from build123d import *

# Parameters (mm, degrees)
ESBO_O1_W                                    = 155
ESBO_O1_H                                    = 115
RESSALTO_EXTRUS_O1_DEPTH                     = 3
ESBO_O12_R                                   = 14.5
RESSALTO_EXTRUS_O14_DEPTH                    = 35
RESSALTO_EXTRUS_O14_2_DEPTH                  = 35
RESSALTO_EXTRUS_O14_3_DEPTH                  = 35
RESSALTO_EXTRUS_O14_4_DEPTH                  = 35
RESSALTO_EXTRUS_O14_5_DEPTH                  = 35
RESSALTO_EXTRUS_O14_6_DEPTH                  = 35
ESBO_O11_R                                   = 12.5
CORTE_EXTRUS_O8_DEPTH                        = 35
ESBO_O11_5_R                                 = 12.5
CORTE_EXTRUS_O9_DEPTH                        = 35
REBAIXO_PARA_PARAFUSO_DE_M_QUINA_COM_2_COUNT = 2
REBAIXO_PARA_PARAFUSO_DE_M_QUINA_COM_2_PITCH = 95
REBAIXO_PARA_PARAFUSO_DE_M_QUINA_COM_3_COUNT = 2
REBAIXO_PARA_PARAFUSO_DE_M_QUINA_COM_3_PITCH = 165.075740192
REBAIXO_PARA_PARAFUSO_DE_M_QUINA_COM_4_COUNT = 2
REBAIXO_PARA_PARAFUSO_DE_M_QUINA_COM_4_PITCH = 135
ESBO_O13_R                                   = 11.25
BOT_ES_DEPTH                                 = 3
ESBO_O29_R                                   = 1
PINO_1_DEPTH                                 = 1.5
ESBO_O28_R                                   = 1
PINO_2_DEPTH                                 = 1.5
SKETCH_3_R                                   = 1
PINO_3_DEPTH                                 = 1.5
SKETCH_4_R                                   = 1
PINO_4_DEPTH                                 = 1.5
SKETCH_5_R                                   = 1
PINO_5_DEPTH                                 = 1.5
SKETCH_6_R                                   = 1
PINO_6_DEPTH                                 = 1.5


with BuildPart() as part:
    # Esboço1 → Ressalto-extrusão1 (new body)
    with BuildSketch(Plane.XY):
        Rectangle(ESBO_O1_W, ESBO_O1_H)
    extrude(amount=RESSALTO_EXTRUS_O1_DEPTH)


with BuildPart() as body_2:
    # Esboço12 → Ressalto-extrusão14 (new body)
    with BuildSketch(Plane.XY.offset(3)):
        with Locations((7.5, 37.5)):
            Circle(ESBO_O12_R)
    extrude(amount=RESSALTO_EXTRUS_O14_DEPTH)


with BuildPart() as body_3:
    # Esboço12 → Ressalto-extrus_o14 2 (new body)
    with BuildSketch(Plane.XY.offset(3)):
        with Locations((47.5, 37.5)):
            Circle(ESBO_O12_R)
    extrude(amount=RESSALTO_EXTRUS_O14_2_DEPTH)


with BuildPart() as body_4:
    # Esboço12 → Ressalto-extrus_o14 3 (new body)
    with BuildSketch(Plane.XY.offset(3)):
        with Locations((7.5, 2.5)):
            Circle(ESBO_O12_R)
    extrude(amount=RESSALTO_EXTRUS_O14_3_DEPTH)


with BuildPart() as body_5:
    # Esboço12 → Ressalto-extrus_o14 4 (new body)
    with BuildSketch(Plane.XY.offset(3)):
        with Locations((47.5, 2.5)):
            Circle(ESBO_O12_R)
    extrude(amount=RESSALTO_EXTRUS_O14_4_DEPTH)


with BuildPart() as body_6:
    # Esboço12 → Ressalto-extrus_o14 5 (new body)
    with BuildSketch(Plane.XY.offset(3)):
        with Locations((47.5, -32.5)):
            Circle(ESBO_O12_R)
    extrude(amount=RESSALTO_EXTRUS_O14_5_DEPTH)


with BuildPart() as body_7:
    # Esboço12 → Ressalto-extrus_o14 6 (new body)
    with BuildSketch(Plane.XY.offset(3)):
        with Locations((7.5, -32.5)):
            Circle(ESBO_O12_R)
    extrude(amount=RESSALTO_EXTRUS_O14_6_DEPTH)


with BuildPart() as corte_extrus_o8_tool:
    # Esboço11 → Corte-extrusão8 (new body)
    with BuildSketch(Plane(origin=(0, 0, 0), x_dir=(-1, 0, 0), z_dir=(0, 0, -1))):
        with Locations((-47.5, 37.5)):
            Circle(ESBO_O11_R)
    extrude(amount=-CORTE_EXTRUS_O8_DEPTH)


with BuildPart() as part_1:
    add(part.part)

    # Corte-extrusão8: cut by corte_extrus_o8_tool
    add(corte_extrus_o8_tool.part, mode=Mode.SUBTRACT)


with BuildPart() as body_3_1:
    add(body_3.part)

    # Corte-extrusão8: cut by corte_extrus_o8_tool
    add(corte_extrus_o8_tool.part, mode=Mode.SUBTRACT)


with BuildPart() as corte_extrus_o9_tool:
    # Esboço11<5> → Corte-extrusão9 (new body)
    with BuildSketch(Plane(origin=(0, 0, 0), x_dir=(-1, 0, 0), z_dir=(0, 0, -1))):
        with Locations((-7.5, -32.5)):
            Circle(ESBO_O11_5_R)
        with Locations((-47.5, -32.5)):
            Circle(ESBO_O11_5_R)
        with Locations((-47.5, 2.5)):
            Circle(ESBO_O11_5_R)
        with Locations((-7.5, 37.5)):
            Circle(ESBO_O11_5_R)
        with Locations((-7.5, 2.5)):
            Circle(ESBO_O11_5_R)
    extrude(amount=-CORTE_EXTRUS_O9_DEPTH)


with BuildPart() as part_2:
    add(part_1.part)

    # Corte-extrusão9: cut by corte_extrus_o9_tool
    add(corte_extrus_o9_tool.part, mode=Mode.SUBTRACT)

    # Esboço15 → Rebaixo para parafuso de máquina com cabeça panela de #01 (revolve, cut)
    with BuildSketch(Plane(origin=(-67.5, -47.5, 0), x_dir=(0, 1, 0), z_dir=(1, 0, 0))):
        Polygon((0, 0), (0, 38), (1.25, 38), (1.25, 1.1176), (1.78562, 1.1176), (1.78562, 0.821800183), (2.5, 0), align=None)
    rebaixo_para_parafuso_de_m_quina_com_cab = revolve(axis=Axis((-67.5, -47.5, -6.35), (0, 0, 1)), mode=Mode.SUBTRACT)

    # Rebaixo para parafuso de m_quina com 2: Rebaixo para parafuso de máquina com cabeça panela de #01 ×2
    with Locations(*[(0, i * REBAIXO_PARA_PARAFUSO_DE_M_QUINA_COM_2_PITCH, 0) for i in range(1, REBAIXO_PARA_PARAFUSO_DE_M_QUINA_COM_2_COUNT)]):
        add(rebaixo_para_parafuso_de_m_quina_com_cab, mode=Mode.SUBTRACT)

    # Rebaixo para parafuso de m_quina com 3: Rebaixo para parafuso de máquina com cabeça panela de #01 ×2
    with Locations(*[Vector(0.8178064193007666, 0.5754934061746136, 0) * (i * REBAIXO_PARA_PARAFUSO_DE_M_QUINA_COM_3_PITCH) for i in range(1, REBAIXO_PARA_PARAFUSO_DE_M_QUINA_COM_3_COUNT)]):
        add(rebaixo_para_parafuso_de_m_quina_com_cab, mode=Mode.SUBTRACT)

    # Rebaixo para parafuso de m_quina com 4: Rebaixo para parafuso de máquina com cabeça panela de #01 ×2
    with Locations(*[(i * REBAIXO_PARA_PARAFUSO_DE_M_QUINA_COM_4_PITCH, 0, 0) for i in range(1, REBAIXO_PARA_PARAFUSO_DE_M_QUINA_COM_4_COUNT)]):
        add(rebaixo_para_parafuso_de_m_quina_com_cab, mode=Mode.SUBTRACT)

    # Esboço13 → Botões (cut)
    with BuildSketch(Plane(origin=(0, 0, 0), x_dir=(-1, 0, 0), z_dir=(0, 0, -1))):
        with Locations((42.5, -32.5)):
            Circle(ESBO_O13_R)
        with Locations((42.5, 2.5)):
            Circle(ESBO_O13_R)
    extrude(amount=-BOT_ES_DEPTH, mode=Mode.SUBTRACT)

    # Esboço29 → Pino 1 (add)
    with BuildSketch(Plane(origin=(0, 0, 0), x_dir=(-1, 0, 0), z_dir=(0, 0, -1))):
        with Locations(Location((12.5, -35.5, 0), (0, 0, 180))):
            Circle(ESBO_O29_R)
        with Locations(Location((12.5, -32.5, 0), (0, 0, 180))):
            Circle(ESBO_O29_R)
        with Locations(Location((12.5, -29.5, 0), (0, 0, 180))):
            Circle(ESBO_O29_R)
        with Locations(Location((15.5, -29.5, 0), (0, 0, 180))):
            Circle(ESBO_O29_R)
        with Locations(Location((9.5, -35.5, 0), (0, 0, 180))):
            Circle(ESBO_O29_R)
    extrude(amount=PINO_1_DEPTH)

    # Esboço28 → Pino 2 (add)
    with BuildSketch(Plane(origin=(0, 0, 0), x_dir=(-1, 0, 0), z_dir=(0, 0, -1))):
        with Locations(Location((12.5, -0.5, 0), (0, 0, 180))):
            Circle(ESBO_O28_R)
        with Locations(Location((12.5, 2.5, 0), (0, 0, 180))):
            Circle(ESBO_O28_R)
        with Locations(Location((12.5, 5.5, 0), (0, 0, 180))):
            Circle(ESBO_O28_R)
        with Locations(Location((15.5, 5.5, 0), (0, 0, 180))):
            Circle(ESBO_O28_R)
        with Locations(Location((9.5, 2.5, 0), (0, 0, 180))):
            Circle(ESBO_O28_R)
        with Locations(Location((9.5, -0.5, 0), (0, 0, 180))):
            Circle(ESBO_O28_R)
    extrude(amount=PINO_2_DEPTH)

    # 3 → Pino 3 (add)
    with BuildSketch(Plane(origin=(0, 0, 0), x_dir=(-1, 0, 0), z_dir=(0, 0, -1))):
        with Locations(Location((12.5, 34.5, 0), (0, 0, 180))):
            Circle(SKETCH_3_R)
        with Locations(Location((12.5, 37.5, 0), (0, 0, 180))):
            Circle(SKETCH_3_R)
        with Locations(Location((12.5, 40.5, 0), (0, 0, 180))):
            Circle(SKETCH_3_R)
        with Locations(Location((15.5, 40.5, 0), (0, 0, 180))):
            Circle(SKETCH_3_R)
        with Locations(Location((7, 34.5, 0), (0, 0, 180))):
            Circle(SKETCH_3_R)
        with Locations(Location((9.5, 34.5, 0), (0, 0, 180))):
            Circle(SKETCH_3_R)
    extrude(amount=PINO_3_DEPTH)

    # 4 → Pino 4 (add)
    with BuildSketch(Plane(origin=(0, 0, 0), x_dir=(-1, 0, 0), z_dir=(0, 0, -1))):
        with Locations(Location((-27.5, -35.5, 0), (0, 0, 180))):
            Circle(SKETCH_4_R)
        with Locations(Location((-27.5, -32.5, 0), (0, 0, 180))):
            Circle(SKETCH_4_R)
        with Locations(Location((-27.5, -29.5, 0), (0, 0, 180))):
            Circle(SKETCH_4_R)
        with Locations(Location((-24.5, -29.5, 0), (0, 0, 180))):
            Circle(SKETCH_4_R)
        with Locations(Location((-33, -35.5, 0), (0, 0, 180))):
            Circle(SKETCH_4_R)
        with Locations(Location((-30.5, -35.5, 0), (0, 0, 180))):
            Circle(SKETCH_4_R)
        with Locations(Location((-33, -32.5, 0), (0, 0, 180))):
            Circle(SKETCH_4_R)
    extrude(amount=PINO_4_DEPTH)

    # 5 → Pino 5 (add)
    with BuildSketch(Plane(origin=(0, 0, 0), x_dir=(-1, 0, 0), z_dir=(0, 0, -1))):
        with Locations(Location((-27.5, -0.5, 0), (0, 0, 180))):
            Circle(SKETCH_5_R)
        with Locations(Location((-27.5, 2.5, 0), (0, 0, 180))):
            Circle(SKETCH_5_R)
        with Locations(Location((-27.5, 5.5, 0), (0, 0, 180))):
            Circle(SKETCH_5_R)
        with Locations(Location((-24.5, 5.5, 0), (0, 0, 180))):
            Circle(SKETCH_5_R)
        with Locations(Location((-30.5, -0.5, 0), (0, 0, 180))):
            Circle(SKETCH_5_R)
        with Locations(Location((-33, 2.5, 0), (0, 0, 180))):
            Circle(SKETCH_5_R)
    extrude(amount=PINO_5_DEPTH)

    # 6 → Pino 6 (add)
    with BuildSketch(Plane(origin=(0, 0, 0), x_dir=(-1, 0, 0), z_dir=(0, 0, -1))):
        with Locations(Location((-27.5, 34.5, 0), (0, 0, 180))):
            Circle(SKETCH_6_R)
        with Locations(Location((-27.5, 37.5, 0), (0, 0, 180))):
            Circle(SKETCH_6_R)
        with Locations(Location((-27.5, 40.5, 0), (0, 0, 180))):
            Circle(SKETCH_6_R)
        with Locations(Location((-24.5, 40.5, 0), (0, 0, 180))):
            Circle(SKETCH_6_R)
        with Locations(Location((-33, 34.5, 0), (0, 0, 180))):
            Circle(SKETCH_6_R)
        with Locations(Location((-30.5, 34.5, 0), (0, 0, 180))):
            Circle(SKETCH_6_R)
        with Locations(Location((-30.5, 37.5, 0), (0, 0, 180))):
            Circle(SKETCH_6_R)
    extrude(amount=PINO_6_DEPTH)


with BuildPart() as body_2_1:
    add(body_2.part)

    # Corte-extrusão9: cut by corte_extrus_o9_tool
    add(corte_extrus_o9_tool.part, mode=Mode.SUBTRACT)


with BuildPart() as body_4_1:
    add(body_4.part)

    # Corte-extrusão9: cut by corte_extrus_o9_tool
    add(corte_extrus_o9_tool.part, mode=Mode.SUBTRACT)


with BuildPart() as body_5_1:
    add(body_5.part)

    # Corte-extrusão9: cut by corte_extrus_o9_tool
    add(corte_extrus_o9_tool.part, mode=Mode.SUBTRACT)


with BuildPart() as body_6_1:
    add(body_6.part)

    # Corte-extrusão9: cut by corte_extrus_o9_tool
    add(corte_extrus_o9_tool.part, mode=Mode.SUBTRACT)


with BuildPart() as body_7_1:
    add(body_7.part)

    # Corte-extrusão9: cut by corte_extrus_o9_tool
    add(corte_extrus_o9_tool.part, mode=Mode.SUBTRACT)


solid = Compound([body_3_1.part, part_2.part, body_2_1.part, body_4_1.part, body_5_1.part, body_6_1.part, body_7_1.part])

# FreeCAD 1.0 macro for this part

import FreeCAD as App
import Part
import Sketcher
Q = App.Units.Quantity


def add_polygon(sketch, points):
    """Adds a closed chain of lines whose ends are joined by coincident constraints."""
    first, n = sketch.GeometryCount, len(points)
    for a, b in zip(points, points[1:] + points[:1]):
        sketch.addGeometry(Part.LineSegment(App.Vector(*a, 0), App.Vector(*b, 0)), False)
    for i in range(n):
        sketch.addConstraint(Sketcher.Constraint("Coincident", first + i, 2, first + (i + 1) % n, 1))

doc = App.newDocument("Part")
body = doc.addObject("PartDesign::Body", "Body")

sketch1 = body.newObject("Sketcher::SketchObject", "Sketch")
sketch1.AttachmentSupport = (doc.getObject("XY_Plane"), [""])
sketch1.MapMode = "FlatFace"
add_polygon(sketch1, [(-78, 58), (-78, -58), (78, -58), (78, 58)])
sketch1.addConstraint([
    Sketcher.Constraint("Vertical", 0),
    Sketcher.Constraint("Horizontal", 1),
    Sketcher.Constraint("Vertical", 2),
    Sketcher.Constraint("Horizontal", 3),
    Sketcher.Constraint("Symmetric", 0, 2, 2, 2, -1, 1),
    Sketcher.Constraint("DistanceX", 1, 1, 1, 2, 155.0),
    Sketcher.Constraint("DistanceY", 0, 2, 0, 1, 115.0),
])
pad1 = body.newObject("PartDesign::Pad", "Pad")
pad1.Profile = sketch1
pad1.Length = 3
body2 = doc.addObject("PartDesign::Body", "Body001")

sketch2 = body2.newObject("Sketcher::SketchObject", "Sketch001")
sketch2.AttachmentSupport = (doc.getObject("XY_Plane001"), [""])
sketch2.MapMode = "FlatFace"
sketch2.AttachmentOffset = App.Placement(App.Vector(0, 0, 3), App.Rotation())
sketch2.addGeometry(Part.Circle(App.Vector(8, 38, 0), App.Vector(0, 0, 1), 14), False)
sketch2.addConstraint([
    Sketcher.Constraint("Diameter", 0, 29.0),
    Sketcher.Constraint("DistanceX", -1, 1, 0, 3, 7.5),
    Sketcher.Constraint("DistanceY", -1, 1, 0, 3, 37.5),
])
pad2 = body2.newObject("PartDesign::Pad", "Pad001")
pad2.Profile = sketch2
pad2.Length = 35
body3 = doc.addObject("PartDesign::Body", "Body002")

sketch3 = body3.newObject("Sketcher::SketchObject", "Sketch002")
sketch3.AttachmentSupport = (doc.getObject("XY_Plane002"), [""])
sketch3.MapMode = "FlatFace"
sketch3.AttachmentOffset = App.Placement(App.Vector(0, 0, 3), App.Rotation())
sketch3.addGeometry(Part.Circle(App.Vector(48, 38, 0), App.Vector(0, 0, 1), 14), False)
sketch3.addConstraint([
    Sketcher.Constraint("Diameter", 0, 29.0),
    Sketcher.Constraint("DistanceX", -1, 1, 0, 3, 47.5),
    Sketcher.Constraint("DistanceY", -1, 1, 0, 3, 37.5),
])
pad3 = body3.newObject("PartDesign::Pad", "Pad002")
pad3.Profile = sketch3
pad3.Length = 35
body4 = doc.addObject("PartDesign::Body", "Body003")

sketch4 = body4.newObject("Sketcher::SketchObject", "Sketch003")
sketch4.AttachmentSupport = (doc.getObject("XY_Plane003"), [""])
sketch4.MapMode = "FlatFace"
sketch4.AttachmentOffset = App.Placement(App.Vector(0, 0, 3), App.Rotation())
sketch4.addGeometry(Part.Circle(App.Vector(8, 2, 0), App.Vector(0, 0, 1), 14), False)
sketch4.addConstraint([
    Sketcher.Constraint("Diameter", 0, 29.0),
    Sketcher.Constraint("DistanceX", -1, 1, 0, 3, 7.5),
    Sketcher.Constraint("DistanceY", -1, 1, 0, 3, 2.5),
])
pad4 = body4.newObject("PartDesign::Pad", "Pad003")
pad4.Profile = sketch4
pad4.Length = 35
body5 = doc.addObject("PartDesign::Body", "Body004")

sketch5 = body5.newObject("Sketcher::SketchObject", "Sketch004")
sketch5.AttachmentSupport = (doc.getObject("XY_Plane004"), [""])
sketch5.MapMode = "FlatFace"
sketch5.AttachmentOffset = App.Placement(App.Vector(0, 0, 3), App.Rotation())
sketch5.addGeometry(Part.Circle(App.Vector(48, 2, 0), App.Vector(0, 0, 1), 14), False)
sketch5.addConstraint([
    Sketcher.Constraint("Diameter", 0, 29.0),
    Sketcher.Constraint("DistanceX", -1, 1, 0, 3, 47.5),
    Sketcher.Constraint("DistanceY", -1, 1, 0, 3, 2.5),
])
pad5 = body5.newObject("PartDesign::Pad", "Pad004")
pad5.Profile = sketch5
pad5.Length = 35
body6 = doc.addObject("PartDesign::Body", "Body005")

sketch6 = body6.newObject("Sketcher::SketchObject", "Sketch005")
sketch6.AttachmentSupport = (doc.getObject("XY_Plane005"), [""])
sketch6.MapMode = "FlatFace"
sketch6.AttachmentOffset = App.Placement(App.Vector(0, 0, 3), App.Rotation())
sketch6.addGeometry(Part.Circle(App.Vector(48, -32, 0), App.Vector(0, 0, 1), 14), False)
sketch6.addConstraint([
    Sketcher.Constraint("Diameter", 0, 29.0),
    Sketcher.Constraint("DistanceX", -1, 1, 0, 3, 47.5),
    Sketcher.Constraint("DistanceY", 0, 3, -1, 1, 32.5),
])
pad6 = body6.newObject("PartDesign::Pad", "Pad005")
pad6.Profile = sketch6
pad6.Length = 35
body7 = doc.addObject("PartDesign::Body", "Body006")

sketch7 = body7.newObject("Sketcher::SketchObject", "Sketch006")
sketch7.AttachmentSupport = (doc.getObject("XY_Plane006"), [""])
sketch7.MapMode = "FlatFace"
sketch7.AttachmentOffset = App.Placement(App.Vector(0, 0, 3), App.Rotation())
sketch7.addGeometry(Part.Circle(App.Vector(8, -32, 0), App.Vector(0, 0, 1), 14), False)
sketch7.addConstraint([
    Sketcher.Constraint("Diameter", 0, 29.0),
    Sketcher.Constraint("DistanceX", -1, 1, 0, 3, 7.5),
    Sketcher.Constraint("DistanceY", 0, 3, -1, 1, 32.5),
])
pad7 = body7.newObject("PartDesign::Pad", "Pad006")
pad7.Profile = sketch7
pad7.Length = 35
body8 = doc.addObject("PartDesign::Body", "Body007")

sketch8 = body8.newObject("Sketcher::SketchObject", "Sketch007")
sketch8.AttachmentSupport = (doc.getObject("XY_Plane007"), [""])
sketch8.MapMode = "FlatFace"
sketch8.addGeometry(Part.Circle(App.Vector(48, 38, 0), App.Vector(0, 0, 1), 12), False)
sketch8.addConstraint([
    Sketcher.Constraint("Diameter", 0, 25.0),
    Sketcher.Constraint("DistanceX", -1, 1, 0, 3, 47.5),
    Sketcher.Constraint("DistanceY", -1, 1, 0, 3, 37.5),
])
pad8 = body8.newObject("PartDesign::Pad", "Pad007")
pad8.Profile = sketch8
pad8.Length = 35
doc.recompute()

body9 = doc.addObject("PartDesign::Body", "Body008")
body9.BaseFeature = body8
boolean = body.newObject("PartDesign::Boolean", "Boolean")
boolean.Type = "Cut"
boolean.addObjects([body9])
doc.recompute()

boolean2 = body3.newObject("PartDesign::Boolean", "Boolean001")
boolean2.Type = "Cut"
boolean2.addObjects([body8])
body10 = doc.addObject("PartDesign::Body", "Body009")
body10.AllowCompound = True

sketch9 = body10.newObject("Sketcher::SketchObject", "Sketch008")
sketch9.AttachmentSupport = (doc.getObject("XY_Plane009"), [""])
sketch9.MapMode = "FlatFace"
sketch9.addGeometry([
    Part.Circle(App.Vector(8, -32, 0), App.Vector(0, 0, 1), 12),
    Part.Circle(App.Vector(48, -32, 0), App.Vector(0, 0, 1), 12),
    Part.Circle(App.Vector(48, 2, 0), App.Vector(0, 0, 1), 12),
    Part.Circle(App.Vector(8, 38, 0), App.Vector(0, 0, 1), 12),
    Part.Circle(App.Vector(8, 2, 0), App.Vector(0, 0, 1), 12),
], False)
sketch9.addConstraint([
    Sketcher.Constraint("Equal", 0, 1),
    Sketcher.Constraint("Equal", 1, 2),
    Sketcher.Constraint("Equal", 2, 3),
    Sketcher.Constraint("Equal", 3, 4),
    Sketcher.Constraint("Horizontal", 0, 3, 1, 3),
    Sketcher.Constraint("Horizontal", 2, 3, 4, 3),
    Sketcher.Constraint("Vertical", 1, 3, 2, 3),
    Sketcher.Constraint("Vertical", 0, 3, 3, 3),
    Sketcher.Constraint("Vertical", 3, 3, 4, 3),
    Sketcher.Constraint("Diameter", 0, 25.0),
    Sketcher.Constraint("DistanceX", 0, 3, 1, 3, 40.0),
    Sketcher.Constraint("DistanceY", 1, 3, 2, 3, 35.0),
    Sketcher.Constraint("DistanceY", 2, 3, 3, 3, 35.0),
    Sketcher.Constraint("DistanceX", -1, 1, 0, 3, 7.5),
    Sketcher.Constraint("DistanceY", 0, 3, -1, 1, 32.5),
])
pad9 = body10.newObject("PartDesign::Pad", "Pad008")
pad9.Profile = sketch9
pad9.Length = 35
doc.recompute()

body11 = doc.addObject("PartDesign::Body", "Body010")
body11.BaseFeature = body10
boolean3 = body.newObject("PartDesign::Boolean", "Boolean002")
boolean3.Type = "Cut"
boolean3.addObjects([body11])
doc.recompute()

sketch10 = body.newObject("Sketcher::SketchObject", "Sketch009")
sketch10.AttachmentSupport = (doc.getObject("YZ_Plane"), [""])
sketch10.MapMode = "FlatFace"
sketch10.AttachmentOffset = App.Placement(App.Vector(0, 0, -67.5), App.Rotation())
add_polygon(sketch10, [(-47.5, 38), (-47.5, 0), (-45, 0), (-45.71, 0.82), (-45.71, 1.12), (-46.25, 1.12), (-46.25, 38)])
sketch10.addGeometry(Part.LineSegment(App.Vector(-47.5, 0, 0), App.Vector(-47.5, 38, 0)), True)
sketch10.addConstraint([
    Sketcher.Constraint("Vertical", 0),
    Sketcher.Constraint("Horizontal", 1),
    Sketcher.Constraint("Vertical", 3),
    Sketcher.Constraint("Horizontal", 4),
    Sketcher.Constraint("Vertical", 5),
    Sketcher.Constraint("Horizontal", 6),
    Sketcher.Constraint("Vertical", 7),
    Sketcher.Constraint("Coincident", 7, 1, 0, 2),
    Sketcher.Constraint("PointOnObject", 0, 2, -1),
    Sketcher.Constraint("Horizontal", 5, 2, 7, 2),
    Sketcher.Constraint("DistanceY", 0, 2, 0, 1, 38.0),
    Sketcher.Constraint("Angle", 2, Q("131 deg")),
    Sketcher.Constraint("DistanceX", 1, 1, 1, 2, 2.5),
    Sketcher.Constraint("DistanceX", 1, 2, -1, 1, 45.0),
    Sketcher.Constraint("DistanceX", 6, 2, 6, 1, 1.25),
    Sketcher.Constraint("DistanceY", 3, 1, 3, 2, 0.2958),
    Sketcher.Constraint("DistanceY", 5, 1, 5, 2, 36.8824),
])
groove = body.newObject("PartDesign::Groove", "Groove")
groove.Profile = sketch10
groove.ReferenceAxis = (sketch10, ["Axis0"])
groove.Angle = 360
doc.recompute()

linearpattern = body.newObject("PartDesign::LinearPattern", "LinearPattern")
linearpattern.Originals = [groove]
linearpattern.Direction = (doc.getObject("Y_Axis"), [""])
linearpattern.Mode = "offset"
linearpattern.Offset = 95
linearpattern.Occurrences = 2
body.Tip = linearpattern
doc.recompute()

datumline = body.newObject("PartDesign::Line", "DatumLine")
datumline.Placement = App.Placement(App.Vector(0, 0, 0), App.Rotation(App.Vector(0, 0, 1), App.Vector(0.817806419, 0.575493406, 0)))
linearpattern2 = body.newObject("PartDesign::LinearPattern", "LinearPattern001")
linearpattern2.Originals = [groove]
linearpattern2.Direction = (datumline, [""])
linearpattern2.Mode = "offset"
linearpattern2.Offset = 165.07574
linearpattern2.Occurrences = 2
body.Tip = linearpattern2
doc.recompute()

linearpattern3 = body.newObject("PartDesign::LinearPattern", "LinearPattern002")
linearpattern3.Originals = [groove]
linearpattern3.Direction = (doc.getObject("X_Axis"), [""])
linearpattern3.Mode = "offset"
linearpattern3.Offset = 135
linearpattern3.Occurrences = 2
body.Tip = linearpattern3

sketch11 = body.newObject("Sketcher::SketchObject", "Sketch010")
sketch11.AttachmentSupport = (doc.getObject("XY_Plane"), [""])
sketch11.MapMode = "FlatFace"
sketch11.addGeometry([
    Part.Circle(App.Vector(-42, -32, 0), App.Vector(0, 0, 1), 11),
    Part.Circle(App.Vector(-42, 2, 0), App.Vector(0, 0, 1), 11),
], False)
sketch11.addConstraint([
    Sketcher.Constraint("Equal", 0, 1),
    Sketcher.Constraint("Vertical", 0, 3, 1, 3),
    Sketcher.Constraint("Diameter", 0, 22.5),
    Sketcher.Constraint("DistanceY", 0, 3, 1, 3, 35.0),
    Sketcher.Constraint("DistanceX", 0, 3, -1, 1, 42.5),
    Sketcher.Constraint("DistanceY", 0, 3, -1, 1, 32.5),
])
pocket1 = body.newObject("PartDesign::Pocket", "Pocket")
pocket1.Profile = sketch11
pocket1.Length = 3
pocket1.Reversed = True

sketch12 = body.newObject("Sketcher::SketchObject", "Sketch011")
sketch12.AttachmentSupport = (doc.getObject("XY_Plane"), [""])
sketch12.MapMode = "FlatFace"
sketch12.addGeometry([
    Part.Circle(App.Vector(-12.5, -35.5, 0), App.Vector(0, 0, 1), 1),
    Part.Circle(App.Vector(-12.5, -32.5, 0), App.Vector(0, 0, 1), 1),
    Part.Circle(App.Vector(-12.5, -29.5, 0), App.Vector(0, 0, 1), 1),
    Part.Circle(App.Vector(-15.5, -29.5, 0), App.Vector(0, 0, 1), 1),
    Part.Circle(App.Vector(-9.5, -35.5, 0), App.Vector(0, 0, 1), 1),
], False)
sketch12.addConstraint([
    Sketcher.Constraint("Equal", 0, 1),
    Sketcher.Constraint("Equal", 1, 2),
    Sketcher.Constraint("Equal", 2, 3),
    Sketcher.Constraint("Equal", 3, 4),
    Sketcher.Constraint("Horizontal", 2, 3, 3, 3),
    Sketcher.Constraint("Horizontal", 0, 3, 4, 3),
    Sketcher.Constraint("Vertical", 0, 3, 1, 3),
    Sketcher.Constraint("Vertical", 1, 3, 2, 3),
    Sketcher.Constraint("Diameter", 0, 2.0),
    Sketcher.Constraint("DistanceY", 0, 3, 1, 3, 3.0),
    Sketcher.Constraint("DistanceY", 1, 3, 2, 3, 3.0),
    Sketcher.Constraint("DistanceX", 3, 3, 2, 3, 3.0),
    Sketcher.Constraint("DistanceX", 0, 3, 4, 3, 3.0),
    Sketcher.Constraint("DistanceX", 0, 3, -1, 1, 12.5),
    Sketcher.Constraint("DistanceY", 0, 3, -1, 1, 35.5),
])
pad10 = body.newObject("PartDesign::Pad", "Pad009")
pad10.Profile = sketch12
pad10.Length = 1.5
pad10.Reversed = True

sketch13 = body.newObject("Sketcher::SketchObject", "Sketch012")
sketch13.AttachmentSupport = (doc.getObject("XY_Plane"), [""])
sketch13.MapMode = "FlatFace"
sketch13.addGeometry([
    Part.Circle(App.Vector(-12.5, -0.5, 0), App.Vector(0, 0, 1), 1),
    Part.Circle(App.Vector(-12.5, 2.5, 0), App.Vector(0, 0, 1), 1),
    Part.Circle(App.Vector(-12.5, 5.5, 0), App.Vector(0, 0, 1), 1),
    Part.Circle(App.Vector(-15.5, 5.5, 0), App.Vector(0, 0, 1), 1),
    Part.Circle(App.Vector(-9.5, 2.5, 0), App.Vector(0, 0, 1), 1),
    Part.Circle(App.Vector(-9.5, -0.5, 0), App.Vector(0, 0, 1), 1),
], False)
sketch13.addConstraint([
    Sketcher.Constraint("Equal", 0, 1),
    Sketcher.Constraint("Equal", 1, 2),
    Sketcher.Constraint("Equal", 2, 3),
    Sketcher.Constraint("Equal", 3, 4),
    Sketcher.Constraint("Equal", 4, 5),
    Sketcher.Constraint("Horizontal", 2, 3, 3, 3),
    Sketcher.Constraint("Horizontal", 1, 3, 4, 3),
    Sketcher.Constraint("Horizontal", 0, 3, 5, 3),
    Sketcher.Constraint("Vertical", 0, 3, 1, 3),
    Sketcher.Constraint("Vertical", 1, 3, 2, 3),
    Sketcher.Constraint("Vertical", 4, 3, 5, 3),
    Sketcher.Constraint("Diameter", 0, 2.0),
    Sketcher.Constraint("DistanceY", 0, 3, 1, 3, 3.0),
    Sketcher.Constraint("DistanceY", 1, 3, 2, 3, 3.0),
    Sketcher.Constraint("DistanceX", 3, 3, 2, 3, 3.0),
    Sketcher.Constraint("DistanceX", 1, 3, 4, 3, 3.0),
    Sketcher.Constraint("DistanceX", 0, 3, -1, 1, 12.5),
    Sketcher.Constraint("DistanceY", 0, 3, -1, 1, 0.5),
])
pad11 = body.newObject("PartDesign::Pad", "Pad010")
pad11.Profile = sketch13
pad11.Length = 1.5
pad11.Reversed = True

sketch14 = body.newObject("Sketcher::SketchObject", "Sketch013")
sketch14.AttachmentSupport = (doc.getObject("XY_Plane"), [""])
sketch14.MapMode = "FlatFace"
sketch14.addGeometry([
    Part.Circle(App.Vector(-12.5, 34.5, 0), App.Vector(0, 0, 1), 1),
    Part.Circle(App.Vector(-12.5, 37.5, 0), App.Vector(0, 0, 1), 1),
    Part.Circle(App.Vector(-12.5, 40.5, 0), App.Vector(0, 0, 1), 1),
    Part.Circle(App.Vector(-15.5, 40.5, 0), App.Vector(0, 0, 1), 1),
    Part.Circle(App.Vector(-7, 34.5, 0), App.Vector(0, 0, 1), 1),
    Part.Circle(App.Vector(-9.5, 34.5, 0), App.Vector(0, 0, 1), 1),
], False)
sketch14.addConstraint([
    Sketcher.Constraint("Equal", 0, 1),
    Sketcher.Constraint("Equal", 1, 2),
    Sketcher.Constraint("Equal", 2, 3),
    Sketcher.Constraint("Equal", 3, 4),
    Sketcher.Constraint("Equal", 4, 5),
    Sketcher.Constraint("Horizontal", 2, 3, 3, 3),
    Sketcher.Constraint("Horizontal", 0, 3, 4, 3),
    Sketcher.Constraint("Horizontal", 4, 3, 5, 3),
    Sketcher.Constraint("Vertical", 0, 3, 1, 3),
    Sketcher.Constraint("Vertical", 1, 3, 2, 3),
    Sketcher.Constraint("Diameter", 0, 2.0),
    Sketcher.Constraint("DistanceX", 4, 3, -1, 1, 7.0),
    Sketcher.Constraint("DistanceY", 0, 3, 1, 3, 3.0),
    Sketcher.Constraint("DistanceY", 1, 3, 2, 3, 3.0),
    Sketcher.Constraint("DistanceX", 3, 3, 2, 3, 3.0),
    Sketcher.Constraint("DistanceX", 0, 3, 5, 3, 3.0),
    Sketcher.Constraint("DistanceX", 0, 3, -1, 1, 12.5),
    Sketcher.Constraint("DistanceY", -1, 1, 0, 3, 34.5),
])
pad12 = body.newObject("PartDesign::Pad", "Pad011")
pad12.Profile = sketch14
pad12.Length = 1.5
pad12.Reversed = True

sketch15 = body.newObject("Sketcher::SketchObject", "Sketch014")
sketch15.AttachmentSupport = (doc.getObject("XY_Plane"), [""])
sketch15.MapMode = "FlatFace"
sketch15.addGeometry([
    Part.Circle(App.Vector(27.5, -35.5, 0), App.Vector(0, 0, 1), 1),
    Part.Circle(App.Vector(27.5, -32.5, 0), App.Vector(0, 0, 1), 1),
    Part.Circle(App.Vector(27.5, -29.5, 0), App.Vector(0, 0, 1), 1),
    Part.Circle(App.Vector(24.5, -29.5, 0), App.Vector(0, 0, 1), 1),
    Part.Circle(App.Vector(33, -35.5, 0), App.Vector(0, 0, 1), 1),
    Part.Circle(App.Vector(30.5, -35.5, 0), App.Vector(0, 0, 1), 1),
    Part.Circle(App.Vector(33, -32.5, 0), App.Vector(0, 0, 1), 1),
], False)
sketch15.addConstraint([
    Sketcher.Constraint("Equal", 0, 1),
    Sketcher.Constraint("Equal", 1, 2),
    Sketcher.Constraint("Equal", 2, 3),
    Sketcher.Constraint("Equal", 3, 4),
    Sketcher.Constraint("Equal", 4, 5),
    Sketcher.Constraint("Equal", 5, 6),
    Sketcher.Constraint("Horizontal", 2, 3, 3, 3),
    Sketcher.Constraint("Horizontal", 0, 3, 4, 3),
    Sketcher.Constraint("Horizontal", 4, 3, 5, 3),
    Sketcher.Constraint("Horizontal", 1, 3, 6, 3),
    Sketcher.Constraint("Vertical", 0, 3, 1, 3),
    Sketcher.Constraint("Vertical", 1, 3, 2, 3),
    Sketcher.Constraint("Vertical", 4, 3, 6, 3),
    Sketcher.Constraint("Diameter", 0, 2.0),
    Sketcher.Constraint("DistanceX", -1, 1, 4, 3, 33.0),
    Sketcher.Constraint("DistanceY", 0, 3, 1, 3, 3.0),
    Sketcher.Constraint("DistanceY", 1, 3, 2, 3, 3.0),
    Sketcher.Constraint("DistanceX", 3, 3, 2, 3, 3.0),
    Sketcher.Constraint("DistanceX", 0, 3, 5, 3, 3.0),
    Sketcher.Constraint("DistanceX", -1, 1, 0, 3, 27.5),
    Sketcher.Constraint("DistanceY", 0, 3, -1, 1, 35.5),
])
pad13 = body.newObject("PartDesign::Pad", "Pad012")
pad13.Profile = sketch15
pad13.Length = 1.5
pad13.Reversed = True

sketch16 = body.newObject("Sketcher::SketchObject", "Sketch015")
sketch16.AttachmentSupport = (doc.getObject("XY_Plane"), [""])
sketch16.MapMode = "FlatFace"
sketch16.addGeometry([
    Part.Circle(App.Vector(27.5, -0.5, 0), App.Vector(0, 0, 1), 1),
    Part.Circle(App.Vector(27.5, 2.5, 0), App.Vector(0, 0, 1), 1),
    Part.Circle(App.Vector(27.5, 5.5, 0), App.Vector(0, 0, 1), 1),
    Part.Circle(App.Vector(24.5, 5.5, 0), App.Vector(0, 0, 1), 1),
    Part.Circle(App.Vector(30.5, -0.5, 0), App.Vector(0, 0, 1), 1),
    Part.Circle(App.Vector(33, 2.5, 0), App.Vector(0, 0, 1), 1),
], False)
sketch16.addConstraint([
    Sketcher.Constraint("Equal", 0, 1),
    Sketcher.Constraint("Equal", 1, 2),
    Sketcher.Constraint("Equal", 2, 3),
    Sketcher.Constraint("Equal", 3, 4),
    Sketcher.Constraint("Equal", 4, 5),
    Sketcher.Constraint("Horizontal", 2, 3, 3, 3),
    Sketcher.Constraint("Horizontal", 0, 3, 4, 3),
    Sketcher.Constraint("Horizontal", 1, 3, 5, 3),
    Sketcher.Constraint("Vertical", 0, 3, 1, 3),
    Sketcher.Constraint("Vertical", 1, 3, 2, 3),
    Sketcher.Constraint("Diameter", 0, 2.0),
    Sketcher.Constraint("DistanceX", -1, 1, 5, 3, 33.0),
    Sketcher.Constraint("DistanceY", 0, 3, 1, 3, 3.0),
    Sketcher.Constraint("DistanceY", 1, 3, 2, 3, 3.0),
    Sketcher.Constraint("DistanceX", 3, 3, 2, 3, 3.0),
    Sketcher.Constraint("DistanceX", 0, 3, 4, 3, 3.0),
    Sketcher.Constraint("DistanceX", -1, 1, 0, 3, 27.5),
    Sketcher.Constraint("DistanceY", 0, 3, -1, 1, 0.5),
])
pad14 = body.newObject("PartDesign::Pad", "Pad013")
pad14.Profile = sketch16
pad14.Length = 1.5
pad14.Reversed = True

sketch17 = body.newObject("Sketcher::SketchObject", "Sketch016")
sketch17.AttachmentSupport = (doc.getObject("XY_Plane"), [""])
sketch17.MapMode = "FlatFace"
sketch17.addGeometry([
    Part.Circle(App.Vector(27.5, 34.5, 0), App.Vector(0, 0, 1), 1),
    Part.Circle(App.Vector(27.5, 37.5, 0), App.Vector(0, 0, 1), 1),
    Part.Circle(App.Vector(27.5, 40.5, 0), App.Vector(0, 0, 1), 1),
    Part.Circle(App.Vector(24.5, 40.5, 0), App.Vector(0, 0, 1), 1),
    Part.Circle(App.Vector(33, 34.5, 0), App.Vector(0, 0, 1), 1),
    Part.Circle(App.Vector(30.5, 34.5, 0), App.Vector(0, 0, 1), 1),
    Part.Circle(App.Vector(30.5, 37.5, 0), App.Vector(0, 0, 1), 1),
], False)
sketch17.addConstraint([
    Sketcher.Constraint("Equal", 0, 1),
    Sketcher.Constraint("Equal", 1, 2),
    Sketcher.Constraint("Equal", 2, 3),
    Sketcher.Constraint("Equal", 3, 4),
    Sketcher.Constraint("Equal", 4, 5),
    Sketcher.Constraint("Equal", 5, 6),
    Sketcher.Constraint("Horizontal", 2, 3, 3, 3),
    Sketcher.Constraint("Horizontal", 0, 3, 4, 3),
    Sketcher.Constraint("Horizontal", 4, 3, 5, 3),
    Sketcher.Constraint("Horizontal", 1, 3, 6, 3),
    Sketcher.Constraint("Vertical", 0, 3, 1, 3),
    Sketcher.Constraint("Vertical", 1, 3, 2, 3),
    Sketcher.Constraint("Vertical", 5, 3, 6, 3),
    Sketcher.Constraint("Diameter", 0, 2.0),
    Sketcher.Constraint("DistanceX", -1, 1, 4, 3, 33.0),
    Sketcher.Constraint("DistanceY", 0, 3, 1, 3, 3.0),
    Sketcher.Constraint("DistanceY", 1, 3, 2, 3, 3.0),
    Sketcher.Constraint("DistanceX", 3, 3, 2, 3, 3.0),
    Sketcher.Constraint("DistanceX", 0, 3, 5, 3, 3.0),
    Sketcher.Constraint("DistanceX", -1, 1, 0, 3, 27.5),
    Sketcher.Constraint("DistanceY", -1, 1, 0, 3, 34.5),
])
pad15 = body.newObject("PartDesign::Pad", "Pad014")
pad15.Profile = sketch17
pad15.Length = 1.5
pad15.Reversed = True
doc.recompute()

body12 = doc.addObject("PartDesign::Body", "Body011")
body12.BaseFeature = body10
boolean4 = body2.newObject("PartDesign::Boolean", "Boolean003")
boolean4.Type = "Cut"
boolean4.addObjects([body12])
doc.recompute()

body13 = doc.addObject("PartDesign::Body", "Body012")
body13.BaseFeature = body10
boolean5 = body4.newObject("PartDesign::Boolean", "Boolean004")
boolean5.Type = "Cut"
boolean5.addObjects([body13])
doc.recompute()

body14 = doc.addObject("PartDesign::Body", "Body013")
body14.BaseFeature = body10
boolean6 = body5.newObject("PartDesign::Boolean", "Boolean005")
boolean6.Type = "Cut"
boolean6.addObjects([body14])
doc.recompute()

body15 = doc.addObject("PartDesign::Body", "Body014")
body15.BaseFeature = body10
boolean7 = body6.newObject("PartDesign::Boolean", "Boolean006")
boolean7.Type = "Cut"
boolean7.addObjects([body15])
doc.recompute()

boolean8 = body7.newObject("PartDesign::Boolean", "Boolean007")
boolean8.Type = "Cut"
boolean8.addObjects([body10])

doc.recompute()
